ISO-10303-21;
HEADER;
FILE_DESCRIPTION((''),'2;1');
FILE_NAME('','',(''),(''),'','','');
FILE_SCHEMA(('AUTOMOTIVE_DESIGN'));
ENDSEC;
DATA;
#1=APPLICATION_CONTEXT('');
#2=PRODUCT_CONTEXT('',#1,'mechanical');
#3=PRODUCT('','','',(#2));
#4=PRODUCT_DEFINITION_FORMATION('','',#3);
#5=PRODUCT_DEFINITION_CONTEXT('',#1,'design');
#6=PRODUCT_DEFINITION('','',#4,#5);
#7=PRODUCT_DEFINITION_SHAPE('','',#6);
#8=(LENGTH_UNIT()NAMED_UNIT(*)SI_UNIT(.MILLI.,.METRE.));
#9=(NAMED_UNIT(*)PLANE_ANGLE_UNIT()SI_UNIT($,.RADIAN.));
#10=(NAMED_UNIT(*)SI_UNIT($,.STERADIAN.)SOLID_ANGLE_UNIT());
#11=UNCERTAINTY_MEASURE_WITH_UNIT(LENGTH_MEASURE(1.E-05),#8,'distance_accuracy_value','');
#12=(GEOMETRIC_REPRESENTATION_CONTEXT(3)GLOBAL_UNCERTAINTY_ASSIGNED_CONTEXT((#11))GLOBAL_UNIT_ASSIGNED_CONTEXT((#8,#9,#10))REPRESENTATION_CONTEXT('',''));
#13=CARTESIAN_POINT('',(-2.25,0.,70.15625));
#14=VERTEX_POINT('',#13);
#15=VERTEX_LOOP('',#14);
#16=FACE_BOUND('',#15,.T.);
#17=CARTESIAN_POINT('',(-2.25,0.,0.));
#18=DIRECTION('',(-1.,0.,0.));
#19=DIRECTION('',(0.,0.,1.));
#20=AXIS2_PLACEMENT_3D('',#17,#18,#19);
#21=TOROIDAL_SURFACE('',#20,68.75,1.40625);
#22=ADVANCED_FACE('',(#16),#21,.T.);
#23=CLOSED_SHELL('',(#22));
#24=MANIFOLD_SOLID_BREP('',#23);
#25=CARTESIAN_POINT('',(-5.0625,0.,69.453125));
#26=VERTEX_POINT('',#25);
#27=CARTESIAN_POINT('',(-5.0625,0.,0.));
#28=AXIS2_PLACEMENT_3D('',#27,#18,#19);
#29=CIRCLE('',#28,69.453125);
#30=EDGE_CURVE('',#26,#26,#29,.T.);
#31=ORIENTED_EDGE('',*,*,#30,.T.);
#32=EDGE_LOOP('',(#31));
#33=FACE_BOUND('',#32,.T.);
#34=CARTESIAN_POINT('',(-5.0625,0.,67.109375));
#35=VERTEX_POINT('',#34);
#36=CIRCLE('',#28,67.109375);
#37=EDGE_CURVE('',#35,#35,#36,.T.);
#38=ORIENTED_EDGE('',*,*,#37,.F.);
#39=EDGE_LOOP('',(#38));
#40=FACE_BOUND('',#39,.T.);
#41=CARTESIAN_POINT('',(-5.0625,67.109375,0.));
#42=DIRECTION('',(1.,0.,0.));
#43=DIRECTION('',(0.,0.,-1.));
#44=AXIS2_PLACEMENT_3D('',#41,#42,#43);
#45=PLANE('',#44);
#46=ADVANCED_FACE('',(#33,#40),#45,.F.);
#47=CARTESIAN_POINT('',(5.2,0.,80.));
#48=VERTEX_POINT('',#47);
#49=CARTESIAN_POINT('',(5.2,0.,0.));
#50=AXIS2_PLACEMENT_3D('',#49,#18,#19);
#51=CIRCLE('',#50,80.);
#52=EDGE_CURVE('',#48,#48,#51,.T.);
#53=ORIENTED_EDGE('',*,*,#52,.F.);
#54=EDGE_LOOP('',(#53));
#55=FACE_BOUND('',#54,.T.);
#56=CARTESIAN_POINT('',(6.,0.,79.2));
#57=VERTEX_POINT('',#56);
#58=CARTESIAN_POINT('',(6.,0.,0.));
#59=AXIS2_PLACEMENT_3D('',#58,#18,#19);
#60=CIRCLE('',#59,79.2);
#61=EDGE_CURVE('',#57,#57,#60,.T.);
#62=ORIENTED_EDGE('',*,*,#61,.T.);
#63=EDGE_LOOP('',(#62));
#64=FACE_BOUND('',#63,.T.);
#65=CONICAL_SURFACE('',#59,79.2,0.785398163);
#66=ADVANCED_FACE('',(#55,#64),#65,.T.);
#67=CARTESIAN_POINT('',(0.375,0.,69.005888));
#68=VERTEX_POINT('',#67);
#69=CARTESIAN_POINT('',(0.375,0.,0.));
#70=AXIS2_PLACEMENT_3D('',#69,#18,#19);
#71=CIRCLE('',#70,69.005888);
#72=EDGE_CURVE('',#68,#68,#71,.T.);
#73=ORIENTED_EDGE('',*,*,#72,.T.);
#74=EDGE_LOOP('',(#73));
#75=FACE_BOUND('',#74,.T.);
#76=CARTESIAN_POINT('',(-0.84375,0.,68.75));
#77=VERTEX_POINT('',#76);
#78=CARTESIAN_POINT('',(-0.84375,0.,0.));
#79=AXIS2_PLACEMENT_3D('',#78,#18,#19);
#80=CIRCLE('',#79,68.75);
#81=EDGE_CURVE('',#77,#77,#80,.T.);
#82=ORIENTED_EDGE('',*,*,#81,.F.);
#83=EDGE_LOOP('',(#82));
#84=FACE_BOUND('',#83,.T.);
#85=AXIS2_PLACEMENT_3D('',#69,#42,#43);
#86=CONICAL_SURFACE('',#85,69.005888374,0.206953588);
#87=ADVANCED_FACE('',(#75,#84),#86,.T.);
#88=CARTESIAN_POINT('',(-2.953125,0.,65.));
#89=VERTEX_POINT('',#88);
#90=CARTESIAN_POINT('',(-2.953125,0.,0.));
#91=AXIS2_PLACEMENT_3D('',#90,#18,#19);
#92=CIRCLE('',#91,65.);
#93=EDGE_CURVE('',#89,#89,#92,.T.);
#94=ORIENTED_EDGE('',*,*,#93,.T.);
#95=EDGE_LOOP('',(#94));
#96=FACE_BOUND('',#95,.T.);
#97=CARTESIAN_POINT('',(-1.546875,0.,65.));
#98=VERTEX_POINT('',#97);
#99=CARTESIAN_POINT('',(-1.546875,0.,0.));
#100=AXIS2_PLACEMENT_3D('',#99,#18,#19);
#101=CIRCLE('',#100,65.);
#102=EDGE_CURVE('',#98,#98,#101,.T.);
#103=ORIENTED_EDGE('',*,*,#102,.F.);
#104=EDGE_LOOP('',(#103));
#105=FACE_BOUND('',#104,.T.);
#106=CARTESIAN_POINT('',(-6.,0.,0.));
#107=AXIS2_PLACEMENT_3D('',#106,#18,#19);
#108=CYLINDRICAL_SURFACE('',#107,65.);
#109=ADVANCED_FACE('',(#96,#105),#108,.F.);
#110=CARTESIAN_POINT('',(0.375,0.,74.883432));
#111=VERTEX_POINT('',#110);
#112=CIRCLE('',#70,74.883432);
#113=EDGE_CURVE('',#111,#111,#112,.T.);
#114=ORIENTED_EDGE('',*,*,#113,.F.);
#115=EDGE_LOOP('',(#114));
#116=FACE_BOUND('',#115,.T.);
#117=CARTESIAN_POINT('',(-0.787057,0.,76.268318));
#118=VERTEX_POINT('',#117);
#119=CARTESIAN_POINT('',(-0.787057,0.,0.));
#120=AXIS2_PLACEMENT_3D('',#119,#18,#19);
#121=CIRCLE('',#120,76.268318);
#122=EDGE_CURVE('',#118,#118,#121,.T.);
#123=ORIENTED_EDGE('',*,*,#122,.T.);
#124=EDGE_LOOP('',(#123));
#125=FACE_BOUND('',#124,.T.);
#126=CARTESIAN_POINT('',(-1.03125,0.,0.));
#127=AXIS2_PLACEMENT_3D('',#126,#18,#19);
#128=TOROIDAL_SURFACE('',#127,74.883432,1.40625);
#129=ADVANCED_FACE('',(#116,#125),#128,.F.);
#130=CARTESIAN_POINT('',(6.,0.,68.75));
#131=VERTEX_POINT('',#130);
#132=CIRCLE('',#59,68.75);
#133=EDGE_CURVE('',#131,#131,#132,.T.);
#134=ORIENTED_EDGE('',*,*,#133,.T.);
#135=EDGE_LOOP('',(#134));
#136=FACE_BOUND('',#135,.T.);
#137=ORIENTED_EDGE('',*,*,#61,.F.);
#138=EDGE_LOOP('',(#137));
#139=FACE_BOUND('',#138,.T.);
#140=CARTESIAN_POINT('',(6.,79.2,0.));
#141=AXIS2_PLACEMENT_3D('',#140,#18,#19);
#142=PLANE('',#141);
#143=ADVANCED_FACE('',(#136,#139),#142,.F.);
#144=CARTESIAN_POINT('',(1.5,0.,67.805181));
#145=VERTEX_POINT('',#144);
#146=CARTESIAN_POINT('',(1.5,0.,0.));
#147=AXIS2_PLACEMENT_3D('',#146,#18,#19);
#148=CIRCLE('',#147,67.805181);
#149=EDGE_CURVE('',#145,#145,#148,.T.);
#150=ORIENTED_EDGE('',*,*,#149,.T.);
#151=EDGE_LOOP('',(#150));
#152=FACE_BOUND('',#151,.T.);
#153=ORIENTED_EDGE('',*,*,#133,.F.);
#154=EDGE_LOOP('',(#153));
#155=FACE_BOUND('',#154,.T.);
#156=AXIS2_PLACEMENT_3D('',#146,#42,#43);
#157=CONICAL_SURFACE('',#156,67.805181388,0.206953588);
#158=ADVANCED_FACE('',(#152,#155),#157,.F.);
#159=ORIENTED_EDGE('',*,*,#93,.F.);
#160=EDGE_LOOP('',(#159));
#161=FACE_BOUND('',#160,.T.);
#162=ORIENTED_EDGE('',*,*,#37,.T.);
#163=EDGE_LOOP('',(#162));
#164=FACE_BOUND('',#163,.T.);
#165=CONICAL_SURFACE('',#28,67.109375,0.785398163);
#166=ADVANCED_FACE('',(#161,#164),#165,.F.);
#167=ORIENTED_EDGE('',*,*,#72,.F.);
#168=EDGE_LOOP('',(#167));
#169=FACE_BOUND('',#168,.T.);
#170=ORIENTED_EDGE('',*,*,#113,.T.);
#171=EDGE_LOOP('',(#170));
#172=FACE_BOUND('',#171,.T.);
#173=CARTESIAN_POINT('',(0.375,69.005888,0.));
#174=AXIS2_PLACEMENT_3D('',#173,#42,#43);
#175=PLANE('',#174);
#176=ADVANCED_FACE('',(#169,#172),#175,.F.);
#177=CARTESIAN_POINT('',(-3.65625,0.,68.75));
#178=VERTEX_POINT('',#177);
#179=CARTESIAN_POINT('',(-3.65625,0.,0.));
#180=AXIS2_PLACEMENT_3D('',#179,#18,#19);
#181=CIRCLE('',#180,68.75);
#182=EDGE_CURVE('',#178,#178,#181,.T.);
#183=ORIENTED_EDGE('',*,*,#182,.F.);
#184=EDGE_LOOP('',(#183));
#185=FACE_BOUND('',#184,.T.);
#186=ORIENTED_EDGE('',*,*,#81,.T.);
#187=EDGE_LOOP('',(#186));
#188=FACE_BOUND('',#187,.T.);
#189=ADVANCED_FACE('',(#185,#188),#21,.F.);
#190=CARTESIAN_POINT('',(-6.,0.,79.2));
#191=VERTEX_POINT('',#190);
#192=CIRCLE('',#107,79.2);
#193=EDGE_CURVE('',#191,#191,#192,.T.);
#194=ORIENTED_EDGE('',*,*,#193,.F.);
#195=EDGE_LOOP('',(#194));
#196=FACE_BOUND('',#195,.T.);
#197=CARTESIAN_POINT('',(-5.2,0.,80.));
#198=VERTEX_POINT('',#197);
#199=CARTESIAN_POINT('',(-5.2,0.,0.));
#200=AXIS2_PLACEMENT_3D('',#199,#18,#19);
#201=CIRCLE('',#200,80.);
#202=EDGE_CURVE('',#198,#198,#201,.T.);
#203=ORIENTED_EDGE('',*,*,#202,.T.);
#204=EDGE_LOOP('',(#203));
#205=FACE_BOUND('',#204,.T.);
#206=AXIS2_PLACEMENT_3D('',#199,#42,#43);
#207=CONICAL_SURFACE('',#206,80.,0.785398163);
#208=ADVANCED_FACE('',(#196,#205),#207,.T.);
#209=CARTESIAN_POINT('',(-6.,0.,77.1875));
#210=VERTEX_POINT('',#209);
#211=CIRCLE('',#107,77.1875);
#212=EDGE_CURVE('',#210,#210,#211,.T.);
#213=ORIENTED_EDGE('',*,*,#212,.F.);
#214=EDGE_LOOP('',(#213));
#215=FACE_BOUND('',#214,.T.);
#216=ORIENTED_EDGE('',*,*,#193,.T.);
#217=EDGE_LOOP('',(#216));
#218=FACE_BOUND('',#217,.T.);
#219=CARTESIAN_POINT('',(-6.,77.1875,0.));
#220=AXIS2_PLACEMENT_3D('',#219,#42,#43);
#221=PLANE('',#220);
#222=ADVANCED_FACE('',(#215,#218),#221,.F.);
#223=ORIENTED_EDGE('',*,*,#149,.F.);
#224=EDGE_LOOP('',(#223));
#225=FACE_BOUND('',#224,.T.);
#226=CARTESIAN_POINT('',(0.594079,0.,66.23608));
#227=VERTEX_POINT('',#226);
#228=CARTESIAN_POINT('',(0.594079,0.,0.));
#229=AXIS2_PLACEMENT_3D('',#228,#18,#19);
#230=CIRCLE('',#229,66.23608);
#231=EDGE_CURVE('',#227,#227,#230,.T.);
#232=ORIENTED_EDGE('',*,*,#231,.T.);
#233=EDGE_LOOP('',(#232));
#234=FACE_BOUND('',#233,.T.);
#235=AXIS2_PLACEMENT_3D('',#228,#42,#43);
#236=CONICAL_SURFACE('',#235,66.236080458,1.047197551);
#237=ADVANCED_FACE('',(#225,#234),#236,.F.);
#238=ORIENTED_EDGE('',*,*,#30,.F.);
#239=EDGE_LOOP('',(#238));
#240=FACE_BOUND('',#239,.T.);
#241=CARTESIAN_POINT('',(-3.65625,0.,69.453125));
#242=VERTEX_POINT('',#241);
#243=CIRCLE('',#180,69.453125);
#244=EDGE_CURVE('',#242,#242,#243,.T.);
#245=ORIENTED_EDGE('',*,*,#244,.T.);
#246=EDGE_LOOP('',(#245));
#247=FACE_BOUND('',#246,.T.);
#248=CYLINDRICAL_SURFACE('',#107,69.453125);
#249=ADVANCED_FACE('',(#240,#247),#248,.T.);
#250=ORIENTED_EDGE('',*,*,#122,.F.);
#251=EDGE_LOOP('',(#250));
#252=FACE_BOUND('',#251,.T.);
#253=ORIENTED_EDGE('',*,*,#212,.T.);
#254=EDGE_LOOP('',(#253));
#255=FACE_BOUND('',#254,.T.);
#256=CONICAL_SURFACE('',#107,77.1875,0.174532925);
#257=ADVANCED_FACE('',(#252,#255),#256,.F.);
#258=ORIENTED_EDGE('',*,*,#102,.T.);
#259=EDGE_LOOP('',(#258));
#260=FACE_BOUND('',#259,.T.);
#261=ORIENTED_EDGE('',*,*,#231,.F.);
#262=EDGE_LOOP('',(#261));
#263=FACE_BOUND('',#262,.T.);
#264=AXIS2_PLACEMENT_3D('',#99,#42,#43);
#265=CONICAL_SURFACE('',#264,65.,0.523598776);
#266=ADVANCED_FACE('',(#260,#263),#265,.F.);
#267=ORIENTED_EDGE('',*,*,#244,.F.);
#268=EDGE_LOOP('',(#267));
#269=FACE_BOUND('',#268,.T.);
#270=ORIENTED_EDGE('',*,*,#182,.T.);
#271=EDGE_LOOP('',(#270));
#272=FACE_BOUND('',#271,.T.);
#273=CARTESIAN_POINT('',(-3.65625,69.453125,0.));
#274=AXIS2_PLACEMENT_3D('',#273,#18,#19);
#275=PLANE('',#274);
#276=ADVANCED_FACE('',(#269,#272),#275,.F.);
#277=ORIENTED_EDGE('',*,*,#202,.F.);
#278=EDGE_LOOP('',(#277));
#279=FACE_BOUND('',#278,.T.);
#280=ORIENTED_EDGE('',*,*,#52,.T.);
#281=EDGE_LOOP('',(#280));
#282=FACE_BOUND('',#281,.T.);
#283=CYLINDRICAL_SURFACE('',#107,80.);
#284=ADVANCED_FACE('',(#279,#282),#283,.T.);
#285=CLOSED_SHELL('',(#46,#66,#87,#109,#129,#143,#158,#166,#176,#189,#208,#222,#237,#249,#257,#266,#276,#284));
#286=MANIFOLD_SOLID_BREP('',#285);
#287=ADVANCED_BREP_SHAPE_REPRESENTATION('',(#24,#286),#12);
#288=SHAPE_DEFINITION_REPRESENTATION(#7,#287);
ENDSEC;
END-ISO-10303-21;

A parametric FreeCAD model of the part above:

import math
import FreeCAD as App
import Part
import Sketcher
from FreeCAD import Vector
Q = App.Units.Quantity

doc = App.newDocument("Part")
body = doc.addObject("PartDesign::Body", "Body")

# Sketch on XY plane
sketch1 = body.newObject("Sketcher::SketchObject", "Sketch")
sketch1.AttachmentSupport = (doc.getObject("XY_Plane"), [""])
sketch1.MapMode = "FlatFace"
sketch1.addGeometry([
    Part.LineSegment(Vector(-6, 79.2, 0), Vector(-6, 77.1875, 0)),  # 0
    Part.LineSegment(Vector(-6, 77.1875, 0), Vector(-0.787057, 76.268318, 0)),  # 1
    Part.ArcOfCircle(Part.Circle(Vector(-1.03125, 74.883432, 0), Vector(0, 0, 1), 1.40625), math.radians(0), math.radians(80)),  # 2
    Part.LineSegment(Vector(0.375, 74.883432, 0), Vector(0.375, 69.005888, 0)),  # 3
    Part.LineSegment(Vector(0.375, 69.005888, 0), Vector(-0.84375, 68.75, 0)),  # 4
    Part.ArcOfCircle(Part.Circle(Vector(-2.25, 68.75, 0), Vector(0, 0, 1), 1.40625), math.radians(180), math.radians(360)),  # 5
    Part.LineSegment(Vector(-3.65625, 68.75, 0), Vector(-3.65625, 69.453125, 0)),  # 6
    Part.LineSegment(Vector(-3.65625, 69.453125, 0), Vector(-5.0625, 69.453125, 0)),  # 7
    Part.LineSegment(Vector(-5.0625, 69.453125, 0), Vector(-5.0625, 67.109375, 0)),  # 8
    Part.LineSegment(Vector(-5.0625, 67.109375, 0), Vector(-2.953125, 65, 0)),  # 9
    Part.LineSegment(Vector(-2.953125, 65, 0), Vector(-1.546875, 65, 0)),  # 10
    Part.LineSegment(Vector(-1.546875, 65, 0), Vector(0.594079, 66.23608, 0)),  # 11
    Part.LineSegment(Vector(0.594079, 66.23608, 0), Vector(1.5, 67.805181, 0)),  # 12
    Part.LineSegment(Vector(1.5, 67.805181, 0), Vector(6, 68.75, 0)),  # 13
    Part.LineSegment(Vector(6, 68.75, 0), Vector(6, 79.2, 0)),  # 14
    Part.LineSegment(Vector(6, 79.2, 0), Vector(5.2, 80, 0)),  # 15
    Part.LineSegment(Vector(5.2, 80, 0), Vector(-5.2, 80, 0)),  # 16
    Part.LineSegment(Vector(-5.2, 80, 0), Vector(-6, 79.2, 0)),  # 17
], False)
sketch1.addConstraint([
    Sketcher.Constraint("Coincident", 0, 2, 1, 1),
    Sketcher.Constraint("Tangent", 1, 2, 2, 2),
    Sketcher.Constraint("Tangent", 2, 1, 3, 1),
    Sketcher.Constraint("Coincident", 3, 2, 4, 1),
    Sketcher.Constraint("Coincident", 4, 2, 5, 2),
    Sketcher.Constraint("Tangent", 5, 1, 6, 1),
    Sketcher.Constraint("Coincident", 6, 2, 7, 1),
    Sketcher.Constraint("Coincident", 7, 2, 8, 1),
    Sketcher.Constraint("Coincident", 8, 2, 9, 1),
    Sketcher.Constraint("Coincident", 9, 2, 10, 1),
    Sketcher.Constraint("Coincident", 10, 2, 11, 1),
    Sketcher.Constraint("Coincident", 11, 2, 12, 1),
    Sketcher.Constraint("Coincident", 12, 2, 13, 1),
    Sketcher.Constraint("Coincident", 13, 2, 14, 1),
    Sketcher.Constraint("Coincident", 14, 2, 15, 1),
    Sketcher.Constraint("Coincident", 15, 2, 16, 1),
    Sketcher.Constraint("Coincident", 16, 2, 17, 1),
    Sketcher.Constraint("Coincident", 17, 2, 0, 1),
    Sketcher.Constraint("Vertical", 0),
    Sketcher.Constraint("Vertical", 3),
    Sketcher.Constraint("Vertical", 6),
    Sketcher.Constraint("Horizontal", 7),
    Sketcher.Constraint("Vertical", 8),
    Sketcher.Constraint("Horizontal", 10),
    Sketcher.Constraint("Vertical", 14),
    Sketcher.Constraint("Horizontal", 16),
    Sketcher.Constraint("Equal", 2, 5),
    Sketcher.Constraint("Symmetric", 14, 2, 17, 2, -2),
    Sketcher.Constraint("Parallel", 4, 13),
    Sketcher.Constraint("Parallel", 9, 15),
    Sketcher.Constraint("Perpendicular", 15, 17),
    Sketcher.Constraint("Horizontal", 5, 3, 4, 2),
    Sketcher.Constraint("Horizontal", 5, 1, 13, 2),
    Sketcher.Constraint("Equal", 7, 10),
    Sketcher.Constraint("Equal", 15, 17),
    Sketcher.Constraint("Angle", 1, Q("-10 deg")),
    Sketcher.Constraint("Angle", 11, Q("30 deg")),
    Sketcher.Constraint("Angle", 12, Q("60 deg")),
    Sketcher.Constraint("DistanceX", 16, 2, 16, 1, 10.4),
    Sketcher.Constraint("DistanceX", 0, 2, -1, 1, 6.0),
    Sketcher.Constraint("DistanceY", -1, 1, 9, 2, 65.0),
    Sketcher.Constraint("DistanceY", -1, 1, 15, 2, 80.0),
    Sketcher.Constraint("DistanceY", 14, 1, 14, 2, 10.45),
    Sketcher.Constraint("DistanceX", -1, 1, 12, 2, 1.5),
    Sketcher.Constraint("DistanceX", 5, 3, -1, 1, 2.25),
    Sketcher.Constraint("Radius", 2, 1.40625),
    Sketcher.Constraint("DistanceY", 0, 2, 0, 1, 2.0125),
    Sketcher.Constraint("DistanceX", -1, 1, 2, 1, 0.375),
    Sketcher.Constraint("DistanceX", 7, 2, 7, 1, 1.40625),
    Sketcher.Constraint("DistanceY", 8, 2, 8, 1, 2.34375),
    Sketcher.Constraint("DistanceY", 11, 2, 12, 2, 1.569101),
    Sketcher.Constraint("Distance", 11, 2.472161),
])
revolution = body.newObject("PartDesign::Revolution", "Revolution")
revolution.Profile = sketch1
revolution.ReferenceAxis = (sketch1, ["H_Axis"])
revolution.Angle = 360
body2 = doc.addObject("PartDesign::Body", "Body001")

# Sketch on XY plane
sketch2 = body2.newObject("Sketcher::SketchObject", "Sketch001")
sketch2.AttachmentSupport = (doc.getObject("XY_Plane001"), [""])
sketch2.MapMode = "FlatFace"
sketch2.addGeometry(Part.Circle(Vector(-2.25, 68.75, 0), Vector(0, 0, 1), 1.40625), False)
sketch2.addConstraint([
    Sketcher.Constraint("Diameter", 0, 2.8125),
    Sketcher.Constraint("DistanceX", 0, 3, -1, 1, 2.25),
    Sketcher.Constraint("DistanceY", -1, 1, 0, 3, 68.75),
])
revolution2 = body2.newObject("PartDesign::Revolution", "Revolution001")
revolution2.Profile = sketch2
revolution2.ReferenceAxis = (sketch2, ["H_Axis"])
revolution2.Angle = 360

doc.recompute()
